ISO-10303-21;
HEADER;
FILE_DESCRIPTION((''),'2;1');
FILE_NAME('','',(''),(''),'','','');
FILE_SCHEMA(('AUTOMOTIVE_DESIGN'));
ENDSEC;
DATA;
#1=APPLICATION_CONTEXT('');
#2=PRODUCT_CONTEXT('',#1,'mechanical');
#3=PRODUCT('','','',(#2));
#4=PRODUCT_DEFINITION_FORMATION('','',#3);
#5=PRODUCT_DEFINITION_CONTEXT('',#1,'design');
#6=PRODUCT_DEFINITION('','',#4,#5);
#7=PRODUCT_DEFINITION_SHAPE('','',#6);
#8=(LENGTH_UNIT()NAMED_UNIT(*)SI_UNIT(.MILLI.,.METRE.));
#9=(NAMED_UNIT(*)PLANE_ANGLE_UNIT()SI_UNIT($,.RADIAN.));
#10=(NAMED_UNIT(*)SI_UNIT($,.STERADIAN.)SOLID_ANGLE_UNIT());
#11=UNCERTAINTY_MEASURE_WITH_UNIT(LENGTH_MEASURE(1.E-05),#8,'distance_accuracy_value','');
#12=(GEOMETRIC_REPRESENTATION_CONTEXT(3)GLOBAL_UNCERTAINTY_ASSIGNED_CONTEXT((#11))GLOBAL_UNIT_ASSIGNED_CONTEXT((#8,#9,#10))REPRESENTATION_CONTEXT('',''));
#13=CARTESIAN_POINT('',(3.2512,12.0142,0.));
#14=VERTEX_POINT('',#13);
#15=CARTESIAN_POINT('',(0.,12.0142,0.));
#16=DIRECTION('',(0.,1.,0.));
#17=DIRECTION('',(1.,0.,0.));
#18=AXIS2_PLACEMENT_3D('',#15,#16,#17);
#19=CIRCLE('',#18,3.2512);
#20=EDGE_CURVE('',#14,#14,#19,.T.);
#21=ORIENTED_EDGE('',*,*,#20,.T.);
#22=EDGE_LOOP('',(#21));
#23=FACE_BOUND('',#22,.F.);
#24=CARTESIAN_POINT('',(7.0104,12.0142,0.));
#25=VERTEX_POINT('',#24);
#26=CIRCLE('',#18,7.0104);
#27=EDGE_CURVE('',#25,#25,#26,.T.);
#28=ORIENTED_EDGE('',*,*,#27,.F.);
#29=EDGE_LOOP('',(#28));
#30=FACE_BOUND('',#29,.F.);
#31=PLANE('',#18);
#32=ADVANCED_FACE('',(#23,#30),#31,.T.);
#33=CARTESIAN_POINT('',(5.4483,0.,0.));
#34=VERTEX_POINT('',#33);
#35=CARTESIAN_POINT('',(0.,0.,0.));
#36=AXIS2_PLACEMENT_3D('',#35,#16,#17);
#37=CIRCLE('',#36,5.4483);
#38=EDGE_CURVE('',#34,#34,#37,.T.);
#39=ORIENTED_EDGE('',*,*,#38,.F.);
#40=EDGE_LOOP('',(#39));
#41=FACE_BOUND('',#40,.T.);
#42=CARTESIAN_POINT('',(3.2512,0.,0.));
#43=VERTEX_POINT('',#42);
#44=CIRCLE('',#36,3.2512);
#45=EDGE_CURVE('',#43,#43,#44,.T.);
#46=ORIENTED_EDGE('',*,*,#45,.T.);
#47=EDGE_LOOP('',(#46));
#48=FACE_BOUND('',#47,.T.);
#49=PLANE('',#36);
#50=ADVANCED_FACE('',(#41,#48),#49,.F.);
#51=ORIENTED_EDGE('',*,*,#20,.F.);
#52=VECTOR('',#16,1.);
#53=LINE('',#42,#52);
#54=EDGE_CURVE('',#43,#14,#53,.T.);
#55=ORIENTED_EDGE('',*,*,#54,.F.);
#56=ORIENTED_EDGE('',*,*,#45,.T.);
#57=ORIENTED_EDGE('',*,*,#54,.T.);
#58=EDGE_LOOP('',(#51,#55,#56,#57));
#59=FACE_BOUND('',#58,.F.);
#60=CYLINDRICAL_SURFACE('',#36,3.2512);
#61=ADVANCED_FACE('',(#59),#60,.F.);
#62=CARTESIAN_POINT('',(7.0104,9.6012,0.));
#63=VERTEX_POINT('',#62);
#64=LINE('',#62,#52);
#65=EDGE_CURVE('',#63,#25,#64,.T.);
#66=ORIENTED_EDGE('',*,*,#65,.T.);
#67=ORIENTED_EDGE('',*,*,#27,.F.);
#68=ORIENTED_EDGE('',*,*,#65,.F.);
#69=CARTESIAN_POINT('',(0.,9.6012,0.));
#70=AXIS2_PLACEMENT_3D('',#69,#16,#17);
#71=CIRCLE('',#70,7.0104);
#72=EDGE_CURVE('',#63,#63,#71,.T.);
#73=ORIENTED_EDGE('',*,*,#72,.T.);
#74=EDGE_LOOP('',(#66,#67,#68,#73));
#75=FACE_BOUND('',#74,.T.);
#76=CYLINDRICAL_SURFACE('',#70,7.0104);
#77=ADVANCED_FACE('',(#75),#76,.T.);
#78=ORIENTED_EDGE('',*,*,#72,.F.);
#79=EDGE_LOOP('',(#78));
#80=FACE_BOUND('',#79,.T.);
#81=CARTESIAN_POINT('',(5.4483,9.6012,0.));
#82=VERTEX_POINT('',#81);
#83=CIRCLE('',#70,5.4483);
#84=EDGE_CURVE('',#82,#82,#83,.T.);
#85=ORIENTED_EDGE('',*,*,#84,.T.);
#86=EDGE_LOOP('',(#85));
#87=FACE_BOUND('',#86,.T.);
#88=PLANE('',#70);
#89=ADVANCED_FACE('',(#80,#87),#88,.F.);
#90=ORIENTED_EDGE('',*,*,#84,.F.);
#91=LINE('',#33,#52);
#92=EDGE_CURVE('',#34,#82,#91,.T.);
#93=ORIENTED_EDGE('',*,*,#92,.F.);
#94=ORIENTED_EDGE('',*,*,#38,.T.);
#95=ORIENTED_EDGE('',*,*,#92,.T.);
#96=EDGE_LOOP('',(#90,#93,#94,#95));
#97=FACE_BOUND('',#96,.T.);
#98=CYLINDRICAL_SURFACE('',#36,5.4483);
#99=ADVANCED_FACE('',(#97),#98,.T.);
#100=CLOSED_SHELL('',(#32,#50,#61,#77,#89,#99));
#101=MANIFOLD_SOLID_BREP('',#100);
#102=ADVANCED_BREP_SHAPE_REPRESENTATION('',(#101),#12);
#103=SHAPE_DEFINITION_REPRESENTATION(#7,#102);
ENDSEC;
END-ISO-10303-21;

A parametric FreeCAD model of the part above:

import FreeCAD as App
import Part
import Sketcher
from FreeCAD import Vector
Q = App.Units.Quantity


def add_polygon(sketch, points):
    """Adds a closed chain of lines whose ends are joined by coincident constraints."""
    first, n = sketch.GeometryCount, len(points)
    for a, b in zip(points, points[1:] + points[:1]):
        sketch.addGeometry(Part.LineSegment(App.Vector(*a, 0), App.Vector(*b, 0)), False)
    for i in range(n):
        sketch.addConstraint(Sketcher.Constraint("Coincident", first + i, 2, first + (i + 1) % n, 1))

doc = App.newDocument("Part")
body = doc.addObject("PartDesign::Body", "Body")

# Sketch on XY plane
sketch1 = body.newObject("Sketcher::SketchObject", "Sketch")
sketch1.AttachmentSupport = (doc.getObject("XY_Plane"), [""])
sketch1.MapMode = "FlatFace"
add_polygon(sketch1, [(3.2512, 12.0142), (3.2512, 0), (5.4483, 0), (5.4483, 9.6012), (7.0104, 9.6012), (7.0104, 12.0142)])  # lines 0-5
sketch1.addConstraint([
    Sketcher.Constraint("Vertical", 0),
    Sketcher.Constraint("Horizontal", 1),
    Sketcher.Constraint("Vertical", 2),
    Sketcher.Constraint("Horizontal", 3),
    Sketcher.Constraint("Vertical", 4),
    Sketcher.Constraint("Horizontal", 5),
    Sketcher.Constraint("PointOnObject", 0, 2, -1),
    Sketcher.Constraint("DistanceY", 0, 2, 0, 1, Q("0.473 in")),
    Sketcher.Constraint("DistanceY", 2, 1, 2, 2, Q("0.378 in")),
    Sketcher.Constraint("DistanceX", -1, 1, 0, 2, Q("0.128 in")),
    Sketcher.Constraint("DistanceX", -1, 1, 3, 2, Q("0.276 in")),
    Sketcher.Constraint("DistanceX", -1, 1, 1, 2, Q("0.2145 in")),
])
revolution = body.newObject("PartDesign::Revolution", "Revolution")
revolution.Profile = sketch1
revolution.ReferenceAxis = (sketch1, ["V_Axis"])
revolution.Angle = 360

doc.recompute()
